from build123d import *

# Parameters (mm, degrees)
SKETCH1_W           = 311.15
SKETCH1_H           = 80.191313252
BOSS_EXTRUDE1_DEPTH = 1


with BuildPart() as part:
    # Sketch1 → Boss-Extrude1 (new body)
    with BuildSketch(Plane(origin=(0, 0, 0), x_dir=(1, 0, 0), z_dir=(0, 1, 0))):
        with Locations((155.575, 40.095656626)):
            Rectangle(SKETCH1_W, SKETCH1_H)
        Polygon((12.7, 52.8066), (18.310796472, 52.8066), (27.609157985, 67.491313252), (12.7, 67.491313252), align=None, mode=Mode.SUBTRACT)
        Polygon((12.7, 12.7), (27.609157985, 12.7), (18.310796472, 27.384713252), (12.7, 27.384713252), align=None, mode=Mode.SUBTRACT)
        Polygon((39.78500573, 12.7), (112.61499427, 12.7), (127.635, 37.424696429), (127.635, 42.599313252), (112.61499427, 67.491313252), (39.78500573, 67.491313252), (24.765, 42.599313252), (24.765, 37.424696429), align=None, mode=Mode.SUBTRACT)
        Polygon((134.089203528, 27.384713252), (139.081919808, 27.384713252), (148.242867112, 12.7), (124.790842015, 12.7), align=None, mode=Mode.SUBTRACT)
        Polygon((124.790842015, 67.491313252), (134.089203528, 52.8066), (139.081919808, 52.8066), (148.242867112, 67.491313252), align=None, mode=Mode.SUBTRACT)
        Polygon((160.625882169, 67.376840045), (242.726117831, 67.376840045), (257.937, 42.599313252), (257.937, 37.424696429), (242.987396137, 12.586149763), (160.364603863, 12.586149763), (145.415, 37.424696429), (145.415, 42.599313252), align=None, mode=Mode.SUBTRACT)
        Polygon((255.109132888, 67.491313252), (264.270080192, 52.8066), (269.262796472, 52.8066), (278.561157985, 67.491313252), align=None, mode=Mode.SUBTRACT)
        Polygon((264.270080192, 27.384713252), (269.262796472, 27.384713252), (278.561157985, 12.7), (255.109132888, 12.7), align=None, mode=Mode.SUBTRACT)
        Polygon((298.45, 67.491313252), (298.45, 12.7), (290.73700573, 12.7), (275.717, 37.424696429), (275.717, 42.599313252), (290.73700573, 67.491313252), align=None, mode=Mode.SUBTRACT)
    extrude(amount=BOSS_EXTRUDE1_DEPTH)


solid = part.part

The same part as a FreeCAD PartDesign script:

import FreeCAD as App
import Part
import Sketcher
Q = App.Units.Quantity

doc = App.newDocument("Part")
body = doc.addObject("PartDesign::Body", "Body")

# Sketch on XZ plane
sketch1 = doc.addObject("Sketcher::SketchObject", "Sketch")
body.addObject(sketch1)
sketch1.AttachmentSupport = (doc.XZ_Plane, [""])
sketch1.MapMode = "FlatFace"
sketch1.addGeometry(Part.LineSegment(App.Vector(0, -80.2, 0), App.Vector(0, 0, 0)), False)
sketch1.addGeometry(Part.LineSegment(App.Vector(0, 0, 0), App.Vector(311.1, 0, 0)), False)
sketch1.addGeometry(Part.LineSegment(App.Vector(311.1, 0, 0), App.Vector(311.1, -80.2, 0)), False)
sketch1.addGeometry(Part.LineSegment(App.Vector(311.1, -80.2, 0), App.Vector(0, -80.2, 0)), False)
sketch1.addGeometry(Part.LineSegment(App.Vector(27.6, -12.7, 0), App.Vector(12.7, -12.7, 0)), False)
sketch1.addGeometry(Part.LineSegment(App.Vector(12.7, -12.7, 0), App.Vector(12.7, -27.4, 0)), False)
sketch1.addGeometry(Part.LineSegment(App.Vector(12.7, -27.4, 0), App.Vector(18.3, -27.4, 0)), False)
sketch1.addGeometry(Part.LineSegment(App.Vector(18.3, -27.4, 0), App.Vector(27.6, -12.7, 0)), False)
sketch1.addGeometry(Part.LineSegment(App.Vector(124.8, -12.7, 0), App.Vector(134.1, -27.4, 0)), False)
sketch1.addGeometry(Part.LineSegment(App.Vector(134.1, -27.4, 0), App.Vector(139.1, -27.4, 0)), False)
sketch1.addGeometry(Part.LineSegment(App.Vector(139.1, -27.4, 0), App.Vector(148.2, -12.7, 0)), False)
sketch1.addGeometry(Part.LineSegment(App.Vector(148.2, -12.7, 0), App.Vector(124.8, -12.7, 0)), False)
sketch1.addGeometry(Part.LineSegment(App.Vector(255.1, -12.7, 0), App.Vector(264.3, -27.4, 0)), False)
sketch1.addGeometry(Part.LineSegment(App.Vector(264.3, -27.4, 0), App.Vector(269.3, -27.4, 0)), False)
sketch1.addGeometry(Part.LineSegment(App.Vector(269.3, -27.4, 0), App.Vector(278.6, -12.7, 0)), False)
sketch1.addGeometry(Part.LineSegment(App.Vector(278.6, -12.7, 0), App.Vector(255.1, -12.7, 0)), False)
sketch1.addGeometry(Part.LineSegment(App.Vector(145.4, -42.6, 0), App.Vector(160.6, -67.4, 0)), False)
sketch1.addGeometry(Part.LineSegment(App.Vector(160.6, -67.4, 0), App.Vector(242.7, -67.4, 0)), False)
sketch1.addGeometry(Part.LineSegment(App.Vector(242.7, -67.4, 0), App.Vector(257.9, -42.6, 0)), False)
sketch1.addGeometry(Part.LineSegment(App.Vector(257.9, -42.6, 0), App.Vector(257.9, -37.4, 0)), False)
sketch1.addGeometry(Part.LineSegment(App.Vector(257.9, -37.4, 0), App.Vector(243, -12.6, 0)), False)
sketch1.addGeometry(Part.LineSegment(App.Vector(243, -12.6, 0), App.Vector(160.4, -12.6, 0)), False)
sketch1.addGeometry(Part.LineSegment(App.Vector(160.4, -12.6, 0), App.Vector(145.4, -37.4, 0)), False)
sketch1.addGeometry(Part.LineSegment(App.Vector(145.4, -37.4, 0), App.Vector(145.4, -42.6, 0)), False)
sketch1.addGeometry(Part.LineSegment(App.Vector(112.6, -12.7, 0), App.Vector(39.8, -12.7, 0)), False)
sketch1.addGeometry(Part.LineSegment(App.Vector(39.8, -12.7, 0), App.Vector(24.8, -37.4, 0)), False)
sketch1.addGeometry(Part.LineSegment(App.Vector(24.8, -37.4, 0), App.Vector(24.8, -42.6, 0)), False)
sketch1.addGeometry(Part.LineSegment(App.Vector(24.8, -42.6, 0), App.Vector(39.8, -67.5, 0)), False)
sketch1.addGeometry(Part.LineSegment(App.Vector(39.8, -67.5, 0), App.Vector(112.6, -67.5, 0)), False)
sketch1.addGeometry(Part.LineSegment(App.Vector(112.6, -67.5, 0), App.Vector(127.6, -42.6, 0)), False)
sketch1.addGeometry(Part.LineSegment(App.Vector(127.6, -42.6, 0), App.Vector(127.6, -37.4, 0)), False)
sketch1.addGeometry(Part.LineSegment(App.Vector(127.6, -37.4, 0), App.Vector(112.6, -12.7, 0)), False)
sketch1.addGeometry(Part.LineSegment(App.Vector(18.3, -52.8, 0), App.Vector(12.7, -52.8, 0)), False)
sketch1.addGeometry(Part.LineSegment(App.Vector(12.7, -52.8, 0), App.Vector(12.7, -67.5, 0)), False)
sketch1.addGeometry(Part.LineSegment(App.Vector(12.7, -67.5, 0), App.Vector(27.6, -67.5, 0)), False)
sketch1.addGeometry(Part.LineSegment(App.Vector(27.6, -67.5, 0), App.Vector(18.3, -52.8, 0)), False)
sketch1.addGeometry(Part.LineSegment(App.Vector(134.1, -52.8, 0), App.Vector(124.8, -67.5, 0)), False)
sketch1.addGeometry(Part.LineSegment(App.Vector(124.8, -67.5, 0), App.Vector(148.2, -67.5, 0)), False)
sketch1.addGeometry(Part.LineSegment(App.Vector(148.2, -67.5, 0), App.Vector(139.1, -52.8, 0)), False)
sketch1.addGeometry(Part.LineSegment(App.Vector(139.1, -52.8, 0), App.Vector(134.1, -52.8, 0)), False)
sketch1.addGeometry(Part.LineSegment(App.Vector(290.7, -67.5, 0), App.Vector(298.4, -67.5, 0)), False)
sketch1.addGeometry(Part.LineSegment(App.Vector(298.4, -67.5, 0), App.Vector(298.4, -12.7, 0)), False)
sketch1.addGeometry(Part.LineSegment(App.Vector(298.4, -12.7, 0), App.Vector(290.7, -12.7, 0)), False)
sketch1.addGeometry(Part.LineSegment(App.Vector(290.7, -12.7, 0), App.Vector(275.7, -37.4, 0)), False)
sketch1.addGeometry(Part.LineSegment(App.Vector(275.7, -37.4, 0), App.Vector(275.7, -42.6, 0)), False)
sketch1.addGeometry(Part.LineSegment(App.Vector(275.7, -42.6, 0), App.Vector(290.7, -67.5, 0)), False)
sketch1.addGeometry(Part.LineSegment(App.Vector(264.3, -52.8, 0), App.Vector(255.1, -67.5, 0)), False)
sketch1.addGeometry(Part.LineSegment(App.Vector(255.1, -67.5, 0), App.Vector(278.6, -67.5, 0)), False)
sketch1.addGeometry(Part.LineSegment(App.Vector(278.6, -67.5, 0), App.Vector(269.3, -52.8, 0)), False)
sketch1.addGeometry(Part.LineSegment(App.Vector(269.3, -52.8, 0), App.Vector(264.3, -52.8, 0)), False)
sketch1.addConstraint(Sketcher.Constraint("Coincident", 0, 2, 1, 1))
sketch1.addConstraint(Sketcher.Constraint("Coincident", 1, 2, 2, 1))
sketch1.addConstraint(Sketcher.Constraint("Coincident", 2, 2, 3, 1))
sketch1.addConstraint(Sketcher.Constraint("Coincident", 3, 2, 0, 1))
sketch1.addConstraint(Sketcher.Constraint("Coincident", 4, 2, 5, 1))
sketch1.addConstraint(Sketcher.Constraint("Coincident", 5, 2, 6, 1))
sketch1.addConstraint(Sketcher.Constraint("Coincident", 6, 2, 7, 1))
sketch1.addConstraint(Sketcher.Constraint("Coincident", 7, 2, 4, 1))
sketch1.addConstraint(Sketcher.Constraint("Coincident", 8, 2, 9, 1))
sketch1.addConstraint(Sketcher.Constraint("Coincident", 9, 2, 10, 1))
sketch1.addConstraint(Sketcher.Constraint("Coincident", 10, 2, 11, 1))
sketch1.addConstraint(Sketcher.Constraint("Coincident", 11, 2, 8, 1))
sketch1.addConstraint(Sketcher.Constraint("Coincident", 12, 2, 13, 1))
sketch1.addConstraint(Sketcher.Constraint("Coincident", 13, 2, 14, 1))
sketch1.addConstraint(Sketcher.Constraint("Coincident", 14, 2, 15, 1))
sketch1.addConstraint(Sketcher.Constraint("Coincident", 15, 2, 12, 1))
sketch1.addConstraint(Sketcher.Constraint("Coincident", 16, 2, 17, 1))
sketch1.addConstraint(Sketcher.Constraint("Coincident", 17, 2, 18, 1))
sketch1.addConstraint(Sketcher.Constraint("Coincident", 18, 2, 19, 1))
sketch1.addConstraint(Sketcher.Constraint("Coincident", 19, 2, 20, 1))
sketch1.addConstraint(Sketcher.Constraint("Coincident", 20, 2, 21, 1))
sketch1.addConstraint(Sketcher.Constraint("Coincident", 21, 2, 22, 1))
sketch1.addConstraint(Sketcher.Constraint("Coincident", 22, 2, 23, 1))
sketch1.addConstraint(Sketcher.Constraint("Coincident", 23, 2, 16, 1))
sketch1.addConstraint(Sketcher.Constraint("Coincident", 24, 2, 25, 1))
sketch1.addConstraint(Sketcher.Constraint("Coincident", 25, 2, 26, 1))
sketch1.addConstraint(Sketcher.Constraint("Coincident", 26, 2, 27, 1))
sketch1.addConstraint(Sketcher.Constraint("Coincident", 27, 2, 28, 1))
sketch1.addConstraint(Sketcher.Constraint("Coincident", 28, 2, 29, 1))
sketch1.addConstraint(Sketcher.Constraint("Coincident", 29, 2, 30, 1))
sketch1.addConstraint(Sketcher.Constraint("Coincident", 30, 2, 31, 1))
sketch1.addConstraint(Sketcher.Constraint("Coincident", 31, 2, 24, 1))
sketch1.addConstraint(Sketcher.Constraint("Coincident", 32, 2, 33, 1))
sketch1.addConstraint(Sketcher.Constraint("Coincident", 33, 2, 34, 1))
sketch1.addConstraint(Sketcher.Constraint("Coincident", 34, 2, 35, 1))
sketch1.addConstraint(Sketcher.Constraint("Coincident", 35, 2, 32, 1))
sketch1.addConstraint(Sketcher.Constraint("Coincident", 36, 2, 37, 1))
sketch1.addConstraint(Sketcher.Constraint("Coincident", 37, 2, 38, 1))
sketch1.addConstraint(Sketcher.Constraint("Coincident", 38, 2, 39, 1))
sketch1.addConstraint(Sketcher.Constraint("Coincident", 39, 2, 36, 1))
sketch1.addConstraint(Sketcher.Constraint("Coincident", 40, 2, 41, 1))
sketch1.addConstraint(Sketcher.Constraint("Coincident", 41, 2, 42, 1))
sketch1.addConstraint(Sketcher.Constraint("Coincident", 42, 2, 43, 1))
sketch1.addConstraint(Sketcher.Constraint("Coincident", 43, 2, 44, 1))
sketch1.addConstraint(Sketcher.Constraint("Coincident", 44, 2, 45, 1))
sketch1.addConstraint(Sketcher.Constraint("Coincident", 45, 2, 40, 1))
sketch1.addConstraint(Sketcher.Constraint("Coincident", 46, 2, 47, 1))
sketch1.addConstraint(Sketcher.Constraint("Coincident", 47, 2, 48, 1))
sketch1.addConstraint(Sketcher.Constraint("Coincident", 48, 2, 49, 1))
sketch1.addConstraint(Sketcher.Constraint("Coincident", 49, 2, 46, 1))
sketch1.addConstraint(Sketcher.Constraint("Vertical", 0))
sketch1.addConstraint(Sketcher.Constraint("Horizontal", 1))
sketch1.addConstraint(Sketcher.Constraint("Vertical", 2))
sketch1.addConstraint(Sketcher.Constraint("Horizontal", 3))
sketch1.addConstraint(Sketcher.Constraint("Horizontal", 4))
sketch1.addConstraint(Sketcher.Constraint("Vertical", 5))
sketch1.addConstraint(Sketcher.Constraint("Horizontal", 6))
sketch1.addConstraint(Sketcher.Constraint("Horizontal", 9))
sketch1.addConstraint(Sketcher.Constraint("Horizontal", 11))
sketch1.addConstraint(Sketcher.Constraint("Horizontal", 13))
sketch1.addConstraint(Sketcher.Constraint("Horizontal", 15))
sketch1.addConstraint(Sketcher.Constraint("Horizontal", 17))
sketch1.addConstraint(Sketcher.Constraint("Vertical", 19))
sketch1.addConstraint(Sketcher.Constraint("Horizontal", 21))
sketch1.addConstraint(Sketcher.Constraint("Vertical", 23))
sketch1.addConstraint(Sketcher.Constraint("Horizontal", 24))
sketch1.addConstraint(Sketcher.Constraint("Vertical", 26))
sketch1.addConstraint(Sketcher.Constraint("Horizontal", 28))
sketch1.addConstraint(Sketcher.Constraint("Vertical", 30))
sketch1.addConstraint(Sketcher.Constraint("Horizontal", 32))
sketch1.addConstraint(Sketcher.Constraint("Vertical", 33))
sketch1.addConstraint(Sketcher.Constraint("Horizontal", 34))
sketch1.addConstraint(Sketcher.Constraint("Horizontal", 37))
sketch1.addConstraint(Sketcher.Constraint("Horizontal", 39))
sketch1.addConstraint(Sketcher.Constraint("Horizontal", 40))
sketch1.addConstraint(Sketcher.Constraint("Vertical", 41))
sketch1.addConstraint(Sketcher.Constraint("Horizontal", 42))
sketch1.addConstraint(Sketcher.Constraint("Vertical", 44))
sketch1.addConstraint(Sketcher.Constraint("Horizontal", 47))
sketch1.addConstraint(Sketcher.Constraint("Horizontal", 49))
sketch1.addConstraint(Sketcher.Constraint("Coincident", 0, 2, -1, 1))
sketch1.addConstraint(Sketcher.Constraint("Parallel", 7, 14))
sketch1.addConstraint(Sketcher.Constraint("Parallel", 8, 35))
sketch1.addConstraint(Sketcher.Constraint("Parallel", 14, 36))
sketch1.addConstraint(Sketcher.Constraint("Parallel", 12, 38))
sketch1.addConstraint(Sketcher.Constraint("Parallel", 25, 43))
sketch1.addConstraint(Sketcher.Constraint("Parallel", 27, 45))
sketch1.addConstraint(Sketcher.Constraint("Parallel", 10, 46))
sketch1.addConstraint(Sketcher.Constraint("Parallel", 35, 48))
sketch1.addConstraint(Sketcher.Constraint("Horizontal", 6, 2, 8, 2))
sketch1.addConstraint(Sketcher.Constraint("Horizontal", 7, 2, 10, 2))
sketch1.addConstraint(Sketcher.Constraint("Horizontal", 9, 2, 12, 2))
sketch1.addConstraint(Sketcher.Constraint("Horizontal", 11, 2, 14, 2))
sketch1.addConstraint(Sketcher.Constraint("Horizontal", 19, 2, 22, 2))
sketch1.addConstraint(Sketcher.Constraint("Horizontal", 18, 2, 23, 2))
sketch1.addConstraint(Sketcher.Constraint("Horizontal", 15, 2, 24, 2))
sketch1.addConstraint(Sketcher.Constraint("Horizontal", 22, 2, 25, 2))
sketch1.addConstraint(Sketcher.Constraint("Horizontal", 23, 2, 26, 2))
sketch1.addConstraint(Sketcher.Constraint("Horizontal", 26, 2, 29, 2))
sketch1.addConstraint(Sketcher.Constraint("Horizontal", 25, 2, 30, 2))
sketch1.addConstraint(Sketcher.Constraint("Horizontal", 28, 2, 33, 2))
sketch1.addConstraint(Sketcher.Constraint("Horizontal", 34, 2, 36, 2))
sketch1.addConstraint(Sketcher.Constraint("Horizontal", 35, 2, 38, 2))
sketch1.addConstraint(Sketcher.Constraint("Horizontal", 37, 2, 40, 2))
sketch1.addConstraint(Sketcher.Constraint("Horizontal", 31, 2, 41, 2))
sketch1.addConstraint(Sketcher.Constraint("Horizontal", 30, 2, 43, 2))
sketch1.addConstraint(Sketcher.Constraint("Horizontal", 29, 2, 44, 2))
sketch1.addConstraint(Sketcher.Constraint("Horizontal", 45, 2, 46, 2))
sketch1.addConstraint(Sketcher.Constraint("Horizontal", 39, 2, 48, 2))
sketch1.addConstraint(Sketcher.Constraint("Vertical", 24, 2, 27, 2))
sketch1.addConstraint(Sketcher.Constraint("Vertical", 28, 2, 31, 2))
sketch1.addConstraint(Sketcher.Constraint("Vertical", 5, 2, 32, 2))
sketch1.addConstraint(Sketcher.Constraint("Vertical", 7, 2, 34, 2))
sketch1.addConstraint(Sketcher.Constraint("Vertical", 6, 2, 35, 2))
sketch1.addConstraint(Sketcher.Constraint("Vertical", 11, 2, 36, 2))
sketch1.addConstraint(Sketcher.Constraint("Vertical", 10, 2, 37, 2))
sketch1.addConstraint(Sketcher.Constraint("Vertical", 9, 2, 38, 2))
sketch1.addConstraint(Sketcher.Constraint("Vertical", 8, 2, 39, 2))
sketch1.addConstraint(Sketcher.Constraint("Vertical", 15, 2, 46, 2))
sketch1.addConstraint(Sketcher.Constraint("Vertical", 14, 2, 47, 2))
sketch1.addConstraint(Sketcher.Constraint("Equal", 9, 13))
sketch1.addConstraint(Sketcher.Constraint("Equal", 16, 18))
sketch1.addConstraint(Sketcher.Constraint("Equal", 20, 22))
sketch1.addConstraint(Sketcher.Constraint("Equal", 27, 29))
sketch1.addConstraint(Sketcher.Constraint("DistanceX", 1, 1, 1, 2, Q("311.15 mm")))
sketch1.addConstraint(Sketcher.Constraint("DistanceX", -1, 1, 4, 2, Q("12.7 mm")))
sketch1.addConstraint(Sketcher.Constraint("DistanceY", 4, 2, -1, 1, Q("12.7 mm")))
sketch1.addConstraint(Sketcher.Constraint("DistanceY", 3, 2, 27, 2, Q("12.7 mm")))
sketch1.addConstraint(Sketcher.Constraint("DistanceX", 40, 2, 2, 2, Q("12.7 mm")))
sketch1.addConstraint(Sketcher.Constraint("DistanceX", 29, 2, 23, 2, Q("17.78 mm")))
sketch1.addConstraint(Sketcher.Constraint("DistanceX", 19, 2, 43, 2, Q("17.78 mm")))
sketch1.addConstraint(Sketcher.Constraint("DistanceX", -1, 1, 18, 2, Q("257.937 mm")))
sketch1.addConstraint(Sketcher.Constraint("DistanceX", -1, 1, 22, 2, Q("145.415 mm")))
sketch1.addConstraint(Sketcher.Constraint("DistanceX", -1, 1, 25, 2, Q("24.765 mm")))
sketch1.addConstraint(Sketcher.Constraint("DistanceY", 27, 2, 26, 2, Q("24.892 mm")))
sketch1.addConstraint(Sketcher.Constraint("DistanceX", 24, 2, 24, 1, Q("72.829989 mm")))
sketch1.addConstraint(Sketcher.Constraint("DistanceY", 32, 2, -1, 1, Q("52.8066 mm")))
sketch1.addConstraint(Sketcher.Constraint("DistanceX", 20, 2, 13, 2, Q("26.2754 mm")))
sketch1.addConstraint(Sketcher.Constraint("DistanceX", 8, 2, 21, 2, Q("26.2754 mm")))
sketch1.addConstraint(Sketcher.Constraint("Distance", 10, Q("17.30791 mm")))
sketch1.addConstraint(Sketcher.Constraint("DistanceX", 4, 2, 4, 1, Q("14.909158 mm")))
sketch1.addConstraint(Sketcher.Constraint("DistanceX", 6, 1, 6, 2, Q("5.610796 mm")))
sketch1.addConstraint(Sketcher.Constraint("DistanceX", 9, 1, 9, 2, Q("4.992716 mm")))
sketch1.addConstraint(Sketcher.Constraint("DistanceX", 11, 2, 11, 1, Q("23.452025 mm")))
sketch1.addConstraint(Sketcher.Constraint("DistanceX", 17, 1, 17, 2, Q("82.100236 mm")))
sketch1.addConstraint(Sketcher.Constraint("DistanceX", 21, 2, 21, 1, Q("82.622792 mm")))
sketch1.addConstraint(Sketcher.Constraint("DistanceY", 19, 1, 19, 2, Q("5.174617 mm")))
sketch1.addConstraint(Sketcher.Constraint("DistanceY", 16, 2, -1, 1, Q("67.37684 mm")))
sketch1.addConstraint(Sketcher.Constraint("DistanceY", 20, 2, -1, 1, Q("12.58615 mm")))
pad1 = doc.addObject("PartDesign::Pad", "Pad")
body.addObject(pad1)
pad1.Profile = sketch1
pad1.Length = 1
pad1.Reversed = True

doc.recompute()
